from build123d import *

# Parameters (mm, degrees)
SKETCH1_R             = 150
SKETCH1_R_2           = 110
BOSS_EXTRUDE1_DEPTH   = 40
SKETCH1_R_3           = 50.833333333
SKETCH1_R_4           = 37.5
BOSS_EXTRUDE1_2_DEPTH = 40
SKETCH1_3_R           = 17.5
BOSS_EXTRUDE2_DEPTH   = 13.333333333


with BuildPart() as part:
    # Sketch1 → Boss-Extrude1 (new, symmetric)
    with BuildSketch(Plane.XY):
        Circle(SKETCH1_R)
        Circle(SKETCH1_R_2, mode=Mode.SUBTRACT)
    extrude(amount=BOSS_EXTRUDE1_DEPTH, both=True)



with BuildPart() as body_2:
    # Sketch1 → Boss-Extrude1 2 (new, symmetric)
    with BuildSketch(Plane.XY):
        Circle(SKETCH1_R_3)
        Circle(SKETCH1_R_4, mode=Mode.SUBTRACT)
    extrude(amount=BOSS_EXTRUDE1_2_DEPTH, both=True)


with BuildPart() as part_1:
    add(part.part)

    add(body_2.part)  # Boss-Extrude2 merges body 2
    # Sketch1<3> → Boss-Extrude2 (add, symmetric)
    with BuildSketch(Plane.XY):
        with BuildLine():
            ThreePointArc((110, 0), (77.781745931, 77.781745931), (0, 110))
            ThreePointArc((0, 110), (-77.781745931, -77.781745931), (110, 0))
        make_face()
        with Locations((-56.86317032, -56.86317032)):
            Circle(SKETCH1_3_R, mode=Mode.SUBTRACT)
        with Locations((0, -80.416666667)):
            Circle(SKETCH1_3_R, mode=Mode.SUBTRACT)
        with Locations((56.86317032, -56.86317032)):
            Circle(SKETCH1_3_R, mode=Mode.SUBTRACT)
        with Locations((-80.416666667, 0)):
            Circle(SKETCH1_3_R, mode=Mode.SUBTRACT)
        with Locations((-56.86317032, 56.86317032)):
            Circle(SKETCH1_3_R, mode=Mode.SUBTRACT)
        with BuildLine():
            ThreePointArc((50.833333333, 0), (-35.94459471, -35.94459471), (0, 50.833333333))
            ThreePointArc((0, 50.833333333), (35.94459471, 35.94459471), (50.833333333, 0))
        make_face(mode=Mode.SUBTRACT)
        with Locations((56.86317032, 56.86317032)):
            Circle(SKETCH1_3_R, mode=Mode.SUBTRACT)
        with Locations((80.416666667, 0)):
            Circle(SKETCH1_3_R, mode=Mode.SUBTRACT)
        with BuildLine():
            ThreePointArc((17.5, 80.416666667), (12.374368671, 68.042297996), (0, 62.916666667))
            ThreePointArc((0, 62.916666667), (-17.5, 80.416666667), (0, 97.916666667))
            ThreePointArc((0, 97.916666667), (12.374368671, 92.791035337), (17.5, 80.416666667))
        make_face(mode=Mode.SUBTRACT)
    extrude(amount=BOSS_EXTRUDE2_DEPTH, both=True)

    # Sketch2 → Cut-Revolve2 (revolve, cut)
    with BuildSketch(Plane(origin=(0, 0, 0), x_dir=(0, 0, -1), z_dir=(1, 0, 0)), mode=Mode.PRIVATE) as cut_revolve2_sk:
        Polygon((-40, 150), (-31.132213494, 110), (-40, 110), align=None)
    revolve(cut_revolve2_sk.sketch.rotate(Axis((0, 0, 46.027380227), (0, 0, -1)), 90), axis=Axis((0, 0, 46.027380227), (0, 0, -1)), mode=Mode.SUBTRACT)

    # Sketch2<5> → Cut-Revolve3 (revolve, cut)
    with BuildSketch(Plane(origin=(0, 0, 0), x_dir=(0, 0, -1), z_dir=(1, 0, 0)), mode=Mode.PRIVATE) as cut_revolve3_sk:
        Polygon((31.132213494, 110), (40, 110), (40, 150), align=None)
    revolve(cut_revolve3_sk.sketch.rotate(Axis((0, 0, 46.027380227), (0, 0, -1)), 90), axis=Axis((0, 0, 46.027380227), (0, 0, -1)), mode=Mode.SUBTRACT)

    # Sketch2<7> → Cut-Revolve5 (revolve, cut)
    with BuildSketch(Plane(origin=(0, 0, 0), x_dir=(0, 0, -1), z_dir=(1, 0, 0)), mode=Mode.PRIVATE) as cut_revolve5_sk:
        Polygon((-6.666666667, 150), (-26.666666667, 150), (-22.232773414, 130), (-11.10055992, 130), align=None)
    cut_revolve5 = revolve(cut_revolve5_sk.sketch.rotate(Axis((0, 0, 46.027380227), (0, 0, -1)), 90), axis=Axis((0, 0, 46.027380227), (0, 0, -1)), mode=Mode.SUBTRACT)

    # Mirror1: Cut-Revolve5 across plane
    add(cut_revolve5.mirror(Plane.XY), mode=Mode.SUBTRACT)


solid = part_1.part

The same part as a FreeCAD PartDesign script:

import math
import FreeCAD as App
import Part
import Sketcher

V = App.Vector
Q = App.Units.Quantity

doc = App.newDocument("Part")
body = doc.addObject("PartDesign::Body", "Body")

# Sketch on XY plane
sketch1 = body.newObject("Sketcher::SketchObject", "Sketch")
sketch1.AttachmentSupport = (doc.getObject("XY_Plane"), [""])
sketch1.MapMode = "FlatFace"
sketch1.addGeometry(Part.Circle(V(0, 0, 0), V(0, 0, 1), 150), False)
sketch1.addGeometry(Part.Circle(V(0, 0, 0), V(0, 0, 1), 110), False)
sketch1.addConstraint(Sketcher.Constraint("Coincident", 0, 3, -1, 1))
sketch1.addConstraint(Sketcher.Constraint("Coincident", 1, 3, -1, 1))
sketch1.addConstraint(Sketcher.Constraint("Diameter", 0, Q("300 mm")))
sketch1.addConstraint(Sketcher.Constraint("Diameter", 1, Q("220 mm")))
pad1 = body.newObject("PartDesign::Pad", "Pad")
pad1.Profile = sketch1
pad1.Length = 80
pad1.Midplane = True
body2 = doc.addObject("PartDesign::Body", "Body001")

# Sketch on XY plane
sketch2 = body2.newObject("Sketcher::SketchObject", "Sketch001")
sketch2.AttachmentSupport = (doc.getObject("XY_Plane001"), [""])
sketch2.MapMode = "FlatFace"
sketch2.addGeometry(Part.Circle(V(0, 0, 0), V(0, 0, 1), 51), False)
sketch2.addGeometry(Part.Circle(V(0, 0, 0), V(0, 0, 1), 38), False)
sketch2.addConstraint(Sketcher.Constraint("Coincident", 0, 3, -1, 1))
sketch2.addConstraint(Sketcher.Constraint("Coincident", 1, 3, -1, 1))
sketch2.addConstraint(Sketcher.Constraint("Diameter", 1, Q("75 mm")))
sketch2.addConstraint(Sketcher.Constraint("Diameter", 0, Q("101.666667 mm")))
pad2 = body2.newObject("PartDesign::Pad", "Pad001")
pad2.Profile = sketch2
pad2.Length = 80
pad2.Midplane = True
body.AllowCompound = True
doc.recompute()

boolean = body.newObject("PartDesign::Boolean", "Boolean")
boolean.Type = "Fuse"
boolean.addObjects([body2])

# Sketch on XY plane
sketch3 = body.newObject("Sketcher::SketchObject", "Sketch002")
sketch3.AttachmentSupport = (doc.getObject("XY_Plane"), [""])
sketch3.MapMode = "FlatFace"
sketch3.addGeometry(Part.ArcOfCircle(Part.Circle(V(0, 0, 0), V(0, 0, 1), 110), math.radians(0), math.radians(90)), False)
sketch3.addGeometry(Part.ArcOfCircle(Part.Circle(V(0, 0, 0), V(0, 0, 1), 110), math.radians(90), math.radians(360)), False)
sketch3.addGeometry(Part.Circle(V(-57, -57, 0), V(0, 0, 1), 18), False)
sketch3.addGeometry(Part.Circle(V(0, -80, 0), V(0, 0, 1), 18), False)
sketch3.addGeometry(Part.Circle(V(-80, 0, 0), V(0, 0, 1), 18), False)
sketch3.addGeometry(Part.Circle(V(57, -57, 0), V(0, 0, 1), 18), False)
sketch3.addGeometry(Part.Circle(V(80, 0, 0), V(0, 0, 1), 18), False)
sketch3.addGeometry(Part.Circle(V(-57, 57, 0), V(0, 0, 1), 18), False)
sketch3.addGeometry(Part.ArcOfCircle(Part.Circle(V(0, 0, 0), V(0, 0, 1), 51), math.radians(0), math.radians(90)), False)
sketch3.addGeometry(Part.ArcOfCircle(Part.Circle(V(0, 0, 0), V(0, 0, 1), 51), math.radians(90), math.radians(360)), False)
sketch3.addGeometry(Part.ArcOfCircle(Part.Circle(V(0, 80, 0), V(0, 0, 1), 18), math.radians(0), math.radians(90)), False)
sketch3.addGeometry(Part.ArcOfCircle(Part.Circle(V(0, 80, 0), V(0, 0, 1), 17), math.radians(-90), math.radians(0)), False)
sketch3.addGeometry(Part.ArcOfCircle(Part.Circle(V(0, 80, 0), V(0, 0, 1), 18), math.radians(90), math.radians(270)), False)
sketch3.addGeometry(Part.Circle(V(57, 57, 0), V(0, 0, 1), 18), False)
sketch3.addConstraint(Sketcher.Constraint("Tangent", 0, 1, 1, 2))
sketch3.addConstraint(Sketcher.Constraint("Coincident", 1, 1, 0, 2))
sketch3.addConstraint(Sketcher.Constraint("Tangent", 8, 1, 9, 2))
sketch3.addConstraint(Sketcher.Constraint("Coincident", 9, 1, 8, 2))
sketch3.addConstraint(Sketcher.Constraint("Tangent", 10, 1, 11, 2))
sketch3.addConstraint(Sketcher.Constraint("Tangent", 11, 1, 12, 2))
sketch3.addConstraint(Sketcher.Constraint("Tangent", 12, 1, 10, 2))
sketch3.addConstraint(Sketcher.Constraint("Coincident", 0, 3, -1, 1))
sketch3.addConstraint(Sketcher.Constraint("Coincident", 8, 3, -1, 1))
sketch3.addConstraint(Sketcher.Constraint("Equal", 2, 3))
sketch3.addConstraint(Sketcher.Constraint("Equal", 3, 4))
sketch3.addConstraint(Sketcher.Constraint("Equal", 4, 5))
sketch3.addConstraint(Sketcher.Constraint("Equal", 5, 6))
sketch3.addConstraint(Sketcher.Constraint("Equal", 6, 7))
sketch3.addConstraint(Sketcher.Constraint("Equal", 7, 10))
sketch3.addConstraint(Sketcher.Constraint("Equal", 12, 13))
sketch3.addConstraint(Sketcher.Constraint("Symmetric", 4, 3, 6, 3, -1, 1))
sketch3.addConstraint(Sketcher.Constraint("Symmetric", 5, 3, 7, 3, -1, 1))
sketch3.addConstraint(Sketcher.Constraint("Symmetric", 3, 3, 10, 3, -1, 1))
sketch3.addConstraint(Sketcher.Constraint("Symmetric", 2, 3, 13, 3, -1, 1))
sketch3.addConstraint(Sketcher.Constraint("Symmetric", 2, 3, 5, 3, -2))
sketch3.addConstraint(Sketcher.Constraint("PointOnObject", 3, 3, -2))
sketch3.addConstraint(Sketcher.Constraint("PointOnObject", 4, 3, -1))
sketch3.addConstraint(Sketcher.Constraint("PointOnObject", 0, 1, -1))
sketch3.addConstraint(Sketcher.Constraint("PointOnObject", 1, 1, -2))
sketch3.addConstraint(Sketcher.Constraint("PointOnObject", 8, 1, -1))
sketch3.addConstraint(Sketcher.Constraint("PointOnObject", 9, 1, -2))
sketch3.addConstraint(Sketcher.Constraint("PointOnObject", 11, 1, -2))
sketch3.addConstraint(Sketcher.Constraint("PointOnObject", 12, 1, -2))
sketch3.addConstraint(Sketcher.Constraint("Horizontal", 12, 3, 10, 1))
sketch3.addConstraint(Sketcher.Constraint("Diameter", 2, Q("35 mm")))
sketch3.addConstraint(Sketcher.Constraint("Radius", 0, Q("110 mm")))
sketch3.addConstraint(Sketcher.Constraint("Radius", 8, Q("50.833333 mm")))
sketch3.addConstraint(Sketcher.Constraint("DistanceX", 2, 3, -1, 1, Q("56.86317 mm")))
sketch3.addConstraint(Sketcher.Constraint("DistanceY", 2, 3, -1, 1, Q("56.86317 mm")))
sketch3.addConstraint(Sketcher.Constraint("DistanceY", 3, 3, -1, 1, Q("80.416667 mm")))
sketch3.addConstraint(Sketcher.Constraint("DistanceX", 4, 3, -1, 1, Q("80.416667 mm")))
pad3 = body.newObject("PartDesign::Pad", "Pad002")
pad3.Profile = sketch3
pad3.Length = 26.666667
pad3.Midplane = True

# Sketch on YZ plane
sketch4 = body.newObject("Sketcher::SketchObject", "Sketch003")
sketch4.AttachmentSupport = (doc.getObject("YZ_Plane"), [""])
sketch4.MapMode = "FlatFace"
sketch4.addGeometry(Part.LineSegment(V(110, 31, 0), V(150, 40, 0)), False)
sketch4.addGeometry(Part.LineSegment(V(150, 40, 0), V(110, 40, 0)), False)
sketch4.addGeometry(Part.LineSegment(V(110, 40, 0), V(110, 31, 0)), False)
sketch4.addConstraint(Sketcher.Constraint("Coincident", 0, 2, 1, 1))
sketch4.addConstraint(Sketcher.Constraint("Coincident", 1, 2, 2, 1))
sketch4.addConstraint(Sketcher.Constraint("Coincident", 2, 2, 0, 1))
sketch4.addConstraint(Sketcher.Constraint("Horizontal", 1))
sketch4.addConstraint(Sketcher.Constraint("Vertical", 2))
sketch4.addConstraint(Sketcher.Constraint("DistanceX", 1, 2, 1, 1, Q("40 mm")))
sketch4.addConstraint(Sketcher.Constraint("DistanceX", -1, 1, 0, 2, Q("150 mm")))
sketch4.addConstraint(Sketcher.Constraint("DistanceY", -1, 1, 0, 2, Q("40 mm")))
sketch4.addConstraint(Sketcher.Constraint("Angle", 0, Q("12.5 deg")))
groove = body.newObject("PartDesign::Groove", "Groove")
groove.Profile = sketch4
groove.ReferenceAxis = (sketch4, ["V_Axis"])
groove.Angle = 360

# Sketch on YZ plane
sketch5 = body.newObject("Sketcher::SketchObject", "Sketch004")
sketch5.AttachmentSupport = (doc.getObject("YZ_Plane"), [""])
sketch5.MapMode = "FlatFace"
sketch5.addGeometry(Part.LineSegment(V(110, -31, 0), V(110, -40, 0)), False)
sketch5.addGeometry(Part.LineSegment(V(110, -40, 0), V(150, -40, 0)), False)
sketch5.addGeometry(Part.LineSegment(V(150, -40, 0), V(110, -31, 0)), False)
sketch5.addConstraint(Sketcher.Constraint("Coincident", 0, 2, 1, 1))
sketch5.addConstraint(Sketcher.Constraint("Coincident", 1, 2, 2, 1))
sketch5.addConstraint(Sketcher.Constraint("Coincident", 2, 2, 0, 1))
sketch5.addConstraint(Sketcher.Constraint("Vertical", 0))
sketch5.addConstraint(Sketcher.Constraint("Horizontal", 1))
sketch5.addConstraint(Sketcher.Constraint("DistanceX", 1, 1, 1, 2, Q("40 mm")))
sketch5.addConstraint(Sketcher.Constraint("DistanceX", -1, 1, 0, 2, Q("110 mm")))
sketch5.addConstraint(Sketcher.Constraint("DistanceY", 0, 2, -1, 1, Q("40 mm")))
sketch5.addConstraint(Sketcher.Constraint("Angle", 2, Q("167.5 deg")))
groove2 = body.newObject("PartDesign::Groove", "Groove001")
groove2.Profile = sketch5
groove2.ReferenceAxis = (sketch5, ["V_Axis"])
groove2.Angle = 360

# Sketch on YZ plane
sketch6 = body.newObject("Sketcher::SketchObject", "Sketch005")
sketch6.AttachmentSupport = (doc.getObject("YZ_Plane"), [""])
sketch6.MapMode = "FlatFace"
sketch6.addGeometry(Part.LineSegment(V(150, 7, 0), V(150, 27, 0)), False)
sketch6.addGeometry(Part.LineSegment(V(150, 27, 0), V(130, 22, 0)), False)
sketch6.addGeometry(Part.LineSegment(V(130, 22, 0), V(130, 11, 0)), False)
sketch6.addGeometry(Part.LineSegment(V(130, 11, 0), V(150, 7, 0)), False)
sketch6.addConstraint(Sketcher.Constraint("Coincident", 0, 2, 1, 1))
sketch6.addConstraint(Sketcher.Constraint("Coincident", 1, 2, 2, 1))
sketch6.addConstraint(Sketcher.Constraint("Coincident", 2, 2, 3, 1))
sketch6.addConstraint(Sketcher.Constraint("Coincident", 3, 2, 0, 1))
sketch6.addConstraint(Sketcher.Constraint("Vertical", 0))
sketch6.addConstraint(Sketcher.Constraint("Vertical", 2))
sketch6.addConstraint(Sketcher.Constraint("Equal", 1, 3))
sketch6.addConstraint(Sketcher.Constraint("DistanceY", 0, 1, 0, 2, Q("20 mm")))
sketch6.addConstraint(Sketcher.Constraint("DistanceX", -1, 1, 0, 2, Q("150 mm")))
sketch6.addConstraint(Sketcher.Constraint("DistanceX", -1, 1, 1, 2, Q("130 mm")))
sketch6.addConstraint(Sketcher.Constraint("Angle", 1, Q("-167.5 deg")))
sketch6.addConstraint(Sketcher.Constraint("DistanceY", -1, 1, 2, 2, Q("11.10056 mm")))
groove3 = body.newObject("PartDesign::Groove", "Groove002")
groove3.Profile = sketch6
groove3.ReferenceAxis = (sketch6, ["V_Axis"])
groove3.Angle = 360
doc.recompute()

mirrored = body.newObject("PartDesign::Mirrored", "Mirrored")
mirrored.Originals = [groove3]
mirrored.MirrorPlane = (doc.getObject("XY_Plane"), [""])
body.Tip = mirrored

doc.recompute()
